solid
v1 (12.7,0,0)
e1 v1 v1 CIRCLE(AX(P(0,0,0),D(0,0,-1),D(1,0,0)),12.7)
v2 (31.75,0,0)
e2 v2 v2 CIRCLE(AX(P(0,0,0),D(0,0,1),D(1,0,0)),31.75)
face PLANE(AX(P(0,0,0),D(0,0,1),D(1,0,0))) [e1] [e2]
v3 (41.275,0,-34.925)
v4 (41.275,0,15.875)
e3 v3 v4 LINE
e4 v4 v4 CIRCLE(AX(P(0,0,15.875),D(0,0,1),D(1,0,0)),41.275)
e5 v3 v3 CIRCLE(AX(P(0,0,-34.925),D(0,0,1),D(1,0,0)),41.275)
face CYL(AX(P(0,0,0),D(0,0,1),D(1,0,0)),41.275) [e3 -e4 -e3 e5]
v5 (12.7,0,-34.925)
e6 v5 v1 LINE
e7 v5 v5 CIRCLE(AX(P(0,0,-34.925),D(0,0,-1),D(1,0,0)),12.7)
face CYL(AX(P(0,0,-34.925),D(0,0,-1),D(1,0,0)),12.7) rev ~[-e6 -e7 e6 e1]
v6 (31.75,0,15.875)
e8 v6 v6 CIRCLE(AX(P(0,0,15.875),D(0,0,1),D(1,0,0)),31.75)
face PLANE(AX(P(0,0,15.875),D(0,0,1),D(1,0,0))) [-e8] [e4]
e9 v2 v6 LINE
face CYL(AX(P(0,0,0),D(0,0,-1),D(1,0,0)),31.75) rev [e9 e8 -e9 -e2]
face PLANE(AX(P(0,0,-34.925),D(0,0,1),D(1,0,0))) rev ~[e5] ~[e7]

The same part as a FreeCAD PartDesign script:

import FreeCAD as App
import Part
import Sketcher

V = App.Vector
Q = App.Units.Quantity

doc = App.newDocument("Part")
body = doc.addObject("PartDesign::Body", "Body")

# Sketch on XY plane
sketch1 = doc.addObject("Sketcher::SketchObject", "Sketch")
body.addObject(sketch1)
sketch1.AttachmentSupport = (doc.XY_Plane, [""])
sketch1.MapMode = "FlatFace"
sketch1.addGeometry(Part.Circle(V(0, 0, 0), V(0, 0, 1), 41), False)
sketch1.addGeometry(Part.Circle(V(0, 0, 0), V(0, 0, 1), 32), False)
sketch1.addConstraint(Sketcher.Constraint("Coincident", 0, 3, -1, 1))
sketch1.addConstraint(Sketcher.Constraint("Coincident", 1, 3, -1, 1))
sketch1.addConstraint(Sketcher.Constraint("Diameter", 1, Q("2.5 in")))
sketch1.addConstraint(Sketcher.Constraint("Diameter", 0, Q("3.25 in")))
pad1 = doc.addObject("PartDesign::Pad", "Pad")
body.addObject(pad1)
pad1.Profile = sketch1
pad1.Length = Q("0.625 in")

# Sketch on XY plane
sketch2 = doc.addObject("Sketcher::SketchObject", "Sketch001")
body.addObject(sketch2)
sketch2.AttachmentSupport = (doc.XY_Plane, [""])
sketch2.MapMode = "FlatFace"
sketch2.addGeometry(Part.Circle(V(0, 0, 0), V(0, 0, 1), 41), False)
sketch2.addConstraint(Sketcher.Constraint("Coincident", 0, 3, -1, 1))
sketch2.addConstraint(Sketcher.Constraint("Diameter", 0, Q("3.25 in")))
pad2 = doc.addObject("PartDesign::Pad", "Pad001")
body.addObject(pad2)
pad2.Profile = sketch2
pad2.Length = Q("1.375 in")
pad2.Reversed = True

# Sketch on XY plane
sketch3 = doc.addObject("Sketcher::SketchObject", "Sketch002")
body.addObject(sketch3)
sketch3.AttachmentSupport = (doc.XY_Plane, [""])
sketch3.MapMode = "FlatFace"
sketch3.AttachmentOffset = App.Placement(V(0, 0, -1.375 * 25.4), App.Rotation())
sketch3.addGeometry(Part.Circle(V(0, 0, 0), V(0, 0, 1), 13), False)
sketch3.addConstraint(Sketcher.Constraint("Coincident", 0, 3, -1, 1))
sketch3.addConstraint(Sketcher.Constraint("Diameter", 0, Q("1 in")))
pocket1 = doc.addObject("PartDesign::Pocket", "Pocket")
body.addObject(pocket1)
pocket1.Profile = sketch3
pocket1.Length = Q("2 in")
pocket1.Reversed = True

doc.recompute()
